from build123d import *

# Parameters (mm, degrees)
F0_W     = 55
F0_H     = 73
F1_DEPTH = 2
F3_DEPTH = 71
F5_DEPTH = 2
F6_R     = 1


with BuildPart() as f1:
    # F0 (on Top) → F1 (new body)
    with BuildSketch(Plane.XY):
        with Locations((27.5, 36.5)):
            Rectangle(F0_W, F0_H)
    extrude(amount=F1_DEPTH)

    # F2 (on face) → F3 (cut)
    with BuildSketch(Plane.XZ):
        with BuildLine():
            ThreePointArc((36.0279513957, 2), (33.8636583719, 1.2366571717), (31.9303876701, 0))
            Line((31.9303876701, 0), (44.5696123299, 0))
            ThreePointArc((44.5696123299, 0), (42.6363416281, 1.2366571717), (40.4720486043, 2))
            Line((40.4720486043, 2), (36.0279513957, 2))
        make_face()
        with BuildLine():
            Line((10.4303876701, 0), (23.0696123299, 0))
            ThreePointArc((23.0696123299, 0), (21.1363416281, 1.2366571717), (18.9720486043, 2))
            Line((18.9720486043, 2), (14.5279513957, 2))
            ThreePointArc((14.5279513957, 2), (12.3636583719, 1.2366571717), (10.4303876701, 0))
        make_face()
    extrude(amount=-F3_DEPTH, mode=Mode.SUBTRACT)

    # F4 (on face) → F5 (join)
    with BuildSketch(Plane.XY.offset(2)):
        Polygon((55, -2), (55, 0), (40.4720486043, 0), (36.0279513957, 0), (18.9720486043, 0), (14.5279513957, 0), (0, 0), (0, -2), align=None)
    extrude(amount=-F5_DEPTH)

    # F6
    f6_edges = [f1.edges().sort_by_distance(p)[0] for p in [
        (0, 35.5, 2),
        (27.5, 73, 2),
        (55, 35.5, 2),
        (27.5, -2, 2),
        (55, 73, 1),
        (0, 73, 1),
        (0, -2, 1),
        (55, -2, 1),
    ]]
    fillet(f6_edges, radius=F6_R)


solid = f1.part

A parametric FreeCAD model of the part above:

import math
import FreeCAD as App
import Part
import Sketcher
Q = App.Units.Quantity


def edges_at(feature, points):
    """Names of the edges that pass closest to the given points."""
    edges = feature.Shape.Edges
    near = lambda p: min(range(len(edges)), key=lambda i: edges[i].distToShape(Part.Vertex(*p))[0])
    return sorted({f"Edge{near(p) + 1}" for p in points})

doc = App.newDocument("Part")
body = doc.addObject("PartDesign::Body", "Body")

sketch1 = body.newObject("Sketcher::SketchObject", "Sketch")
sketch1.AttachmentSupport = (doc.getObject("XY_Plane"), [""])
sketch1.MapMode = "FlatFace"
sketch1.addGeometry(Part.LineSegment(App.Vector(0, 73, 0), App.Vector(0, 0, 0)), False)
sketch1.addGeometry(Part.LineSegment(App.Vector(0, 0, 0), App.Vector(55, 0, 0)), False)
sketch1.addGeometry(Part.LineSegment(App.Vector(55, 0, 0), App.Vector(55, 73, 0)), False)
sketch1.addGeometry(Part.LineSegment(App.Vector(55, 73, 0), App.Vector(0, 73, 0)), False)
sketch1.addConstraint(Sketcher.Constraint("Coincident", 0, 2, 1, 1))
sketch1.addConstraint(Sketcher.Constraint("Coincident", 1, 2, 2, 1))
sketch1.addConstraint(Sketcher.Constraint("Coincident", 2, 2, 3, 1))
sketch1.addConstraint(Sketcher.Constraint("Coincident", 3, 2, 0, 1))
sketch1.addConstraint(Sketcher.Constraint("Vertical", 0))
sketch1.addConstraint(Sketcher.Constraint("Horizontal", 1))
sketch1.addConstraint(Sketcher.Constraint("Vertical", 2))
sketch1.addConstraint(Sketcher.Constraint("Horizontal", 3))
sketch1.addConstraint(Sketcher.Constraint("Coincident", 0, 2, -1, 1))
sketch1.addConstraint(Sketcher.Constraint("DistanceX", 1, 1, 1, 2, Q("55 mm")))
sketch1.addConstraint(Sketcher.Constraint("DistanceY", 0, 2, 0, 1, Q("73 mm")))
pad1 = body.newObject("PartDesign::Pad", "Pad")
pad1.Profile = sketch1
pad1.Length = 2

sketch2 = body.newObject("Sketcher::SketchObject", "Sketch001")
sketch2.AttachmentSupport = (doc.getObject("XZ_Plane"), [""])
sketch2.MapMode = "FlatFace"
sketch2.addGeometry(Part.ArcOfCircle(Part.Circle(App.Vector(38.2, -7.8, 0), App.Vector(0, 0, 1), 10), math.radians(103), math.radians(129)), False)
sketch2.addGeometry(Part.LineSegment(App.Vector(31.9, 0, 0), App.Vector(44.6, 0, 0)), False)
sketch2.addGeometry(Part.ArcOfCircle(Part.Circle(App.Vector(38.2, -7.8, 0), App.Vector(0, 0, 1), 10), math.radians(51), math.radians(77)), False)
sketch2.addGeometry(Part.LineSegment(App.Vector(40.5, 2, 0), App.Vector(36, 2, 0)), False)
sketch2.addGeometry(Part.LineSegment(App.Vector(10.4, 0, 0), App.Vector(23.1, 0, 0)), False)
sketch2.addGeometry(Part.ArcOfCircle(Part.Circle(App.Vector(16.8, -7.8, 0), App.Vector(0, 0, 1), 10), math.radians(51), math.radians(77)), False)
sketch2.addGeometry(Part.LineSegment(App.Vector(19, 2, 0), App.Vector(14.5, 2, 0)), False)
sketch2.addGeometry(Part.ArcOfCircle(Part.Circle(App.Vector(16.8, -7.8, 0), App.Vector(0, 0, 1), 10), math.radians(103), math.radians(129)), False)
sketch2.addConstraint(Sketcher.Constraint("Coincident", 0, 2, 1, 1))
sketch2.addConstraint(Sketcher.Constraint("Coincident", 1, 2, 2, 1))
sketch2.addConstraint(Sketcher.Constraint("Coincident", 2, 2, 3, 1))
sketch2.addConstraint(Sketcher.Constraint("Coincident", 3, 2, 0, 1))
sketch2.addConstraint(Sketcher.Constraint("Coincident", 4, 2, 5, 1))
sketch2.addConstraint(Sketcher.Constraint("Coincident", 5, 2, 6, 1))
sketch2.addConstraint(Sketcher.Constraint("Coincident", 6, 2, 7, 1))
sketch2.addConstraint(Sketcher.Constraint("Coincident", 7, 2, 4, 1))
sketch2.addConstraint(Sketcher.Constraint("Horizontal", 1))
sketch2.addConstraint(Sketcher.Constraint("Horizontal", 3))
sketch2.addConstraint(Sketcher.Constraint("Horizontal", 4))
sketch2.addConstraint(Sketcher.Constraint("Horizontal", 6))
sketch2.addConstraint(Sketcher.Constraint("Coincident", 2, 3, 0, 3))
sketch2.addConstraint(Sketcher.Constraint("Coincident", 7, 3, 5, 3))
sketch2.addConstraint(Sketcher.Constraint("Equal", 0, 2))
sketch2.addConstraint(Sketcher.Constraint("Equal", 2, 5))
sketch2.addConstraint(Sketcher.Constraint("Equal", 5, 7))
sketch2.addConstraint(Sketcher.Constraint("PointOnObject", 0, 2, -1))
sketch2.addConstraint(Sketcher.Constraint("PointOnObject", 4, 2, -1))
sketch2.addConstraint(Sketcher.Constraint("Horizontal", 2, 3, 5, 3))
sketch2.addConstraint(Sketcher.Constraint("Horizontal", 3, 2, 5, 2))
sketch2.addConstraint(Sketcher.Constraint("Radius", 0, Q("10 mm")))
sketch2.addConstraint(Sketcher.Constraint("DistanceY", -1, 1, 2, 2, Q("2 mm")))
sketch2.addConstraint(Sketcher.Constraint("DistanceX", 5, 3, 0, 3, Q("21.5 mm")))
sketch2.addConstraint(Sketcher.Constraint("DistanceX", -1, 1, 0, 3, Q("38.25 mm")))
sketch2.addConstraint(Sketcher.Constraint("DistanceY", 0, 3, -1, 1, Q("7.75 mm")))
pocket1 = body.newObject("PartDesign::Pocket", "Pocket")
pocket1.Profile = sketch2
pocket1.Length = 71

sketch3 = body.newObject("Sketcher::SketchObject", "Sketch002")
sketch3.AttachmentSupport = (doc.getObject("XY_Plane"), [""])
sketch3.MapMode = "FlatFace"
sketch3.AttachmentOffset = App.Placement(App.Vector(0, 0, 2), App.Rotation())
sketch3.addGeometry(Part.LineSegment(App.Vector(55, -2, 0), App.Vector(55, 0, 0)), False)
sketch3.addGeometry(Part.LineSegment(App.Vector(55, 0, 0), App.Vector(0, 0, 0)), False)
sketch3.addGeometry(Part.LineSegment(App.Vector(0, 0, 0), App.Vector(0, -2, 0)), False)
sketch3.addGeometry(Part.LineSegment(App.Vector(0, -2, 0), App.Vector(55, -2, 0)), False)
sketch3.addConstraint(Sketcher.Constraint("Coincident", 0, 2, 1, 1))
sketch3.addConstraint(Sketcher.Constraint("Coincident", 1, 2, 2, 1))
sketch3.addConstraint(Sketcher.Constraint("Coincident", 2, 2, 3, 1))
sketch3.addConstraint(Sketcher.Constraint("Coincident", 3, 2, 0, 1))
sketch3.addConstraint(Sketcher.Constraint("Vertical", 0))
sketch3.addConstraint(Sketcher.Constraint("Horizontal", 1))
sketch3.addConstraint(Sketcher.Constraint("Vertical", 2))
sketch3.addConstraint(Sketcher.Constraint("Horizontal", 3))
sketch3.addConstraint(Sketcher.Constraint("Coincident", 1, 2, -1, 1))
sketch3.addConstraint(Sketcher.Constraint("DistanceX", 1, 2, 1, 1, Q("55 mm")))
sketch3.addConstraint(Sketcher.Constraint("DistanceY", 0, 1, 0, 2, Q("2 mm")))
pad2 = body.newObject("PartDesign::Pad", "Pad001")
pad2.Profile = sketch3
pad2.Length = 2
pad2.Reversed = True
doc.recompute()

fillet = body.newObject("PartDesign::Fillet", "Fillet")
fillet.Base = (pad2, edges_at(pad2, [
    (0, 35.5, 2),
    (27.5, 73, 2),
    (55, 35.5, 2),
    (27.5, -2, 2),
    (55, 73, 1),
    (0, 73, 1),
    (0, -2, 1),
    (55, -2, 1),
]))
fillet.Radius = 1

doc.recompute()
